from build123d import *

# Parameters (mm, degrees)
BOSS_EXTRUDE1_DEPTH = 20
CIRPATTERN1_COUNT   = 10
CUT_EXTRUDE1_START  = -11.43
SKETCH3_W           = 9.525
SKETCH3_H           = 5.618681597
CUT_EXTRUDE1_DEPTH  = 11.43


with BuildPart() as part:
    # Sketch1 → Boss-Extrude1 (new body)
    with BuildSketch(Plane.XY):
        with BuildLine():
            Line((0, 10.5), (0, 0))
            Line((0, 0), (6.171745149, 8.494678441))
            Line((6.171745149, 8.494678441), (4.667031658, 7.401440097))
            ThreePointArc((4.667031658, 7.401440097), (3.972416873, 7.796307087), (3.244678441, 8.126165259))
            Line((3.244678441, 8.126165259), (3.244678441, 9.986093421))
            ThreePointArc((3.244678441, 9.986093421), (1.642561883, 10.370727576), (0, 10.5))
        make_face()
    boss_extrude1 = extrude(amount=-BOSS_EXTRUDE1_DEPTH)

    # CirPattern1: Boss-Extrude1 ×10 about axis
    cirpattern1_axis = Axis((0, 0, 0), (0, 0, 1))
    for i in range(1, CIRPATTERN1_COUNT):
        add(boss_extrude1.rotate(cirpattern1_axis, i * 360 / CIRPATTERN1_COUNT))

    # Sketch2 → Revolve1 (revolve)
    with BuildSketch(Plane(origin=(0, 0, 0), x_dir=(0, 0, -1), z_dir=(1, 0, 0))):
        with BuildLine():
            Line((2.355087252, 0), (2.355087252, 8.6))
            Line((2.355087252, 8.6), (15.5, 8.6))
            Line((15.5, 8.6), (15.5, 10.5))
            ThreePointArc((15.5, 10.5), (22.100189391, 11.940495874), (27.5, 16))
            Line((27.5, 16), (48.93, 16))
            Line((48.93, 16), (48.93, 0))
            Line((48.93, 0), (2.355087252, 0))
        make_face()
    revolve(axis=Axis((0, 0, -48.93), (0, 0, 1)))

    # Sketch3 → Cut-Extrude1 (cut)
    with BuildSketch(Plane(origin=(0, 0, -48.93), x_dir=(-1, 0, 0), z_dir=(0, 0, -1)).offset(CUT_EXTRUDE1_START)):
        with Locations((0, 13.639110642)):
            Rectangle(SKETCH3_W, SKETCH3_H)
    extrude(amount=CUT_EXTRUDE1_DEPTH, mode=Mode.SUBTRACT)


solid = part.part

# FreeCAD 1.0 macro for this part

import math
import FreeCAD as App
import Part
import Sketcher
Q = App.Units.Quantity


def add_polygon(sketch, points):
    """Adds a closed chain of lines whose ends are joined by coincident constraints."""
    first, n = sketch.GeometryCount, len(points)
    for a, b in zip(points, points[1:] + points[:1]):
        sketch.addGeometry(Part.LineSegment(App.Vector(*a, 0), App.Vector(*b, 0)), False)
    for i in range(n):
        sketch.addConstraint(Sketcher.Constraint("Coincident", first + i, 2, first + (i + 1) % n, 1))

doc = App.newDocument("Part")
body = doc.addObject("PartDesign::Body", "Body")

# Sketch on XY plane
sketch1 = body.newObject("Sketcher::SketchObject", "Sketch")
sketch1.AttachmentSupport = (doc.getObject("XY_Plane"), [""])
sketch1.MapMode = "FlatFace"
sketch1.addGeometry(Part.LineSegment(App.Vector(0, 10.5, 0), App.Vector(0, 0, 0)), False)
sketch1.addGeometry(Part.LineSegment(App.Vector(0, 0, 0), App.Vector(6.2, 8.5, 0)), False)
sketch1.addGeometry(Part.LineSegment(App.Vector(6.2, 8.5, 0), App.Vector(4.7, 7.4, 0)), False)
sketch1.addGeometry(Part.ArcOfCircle(Part.Circle(App.Vector(0, 0, 0), App.Vector(0, 0, 1), 8.7), math.radians(57.77), math.radians(68.23)), False)
sketch1.addGeometry(Part.LineSegment(App.Vector(3.2, 8.1, 0), App.Vector(3.2, 10, 0)), False)
sketch1.addGeometry(Part.ArcOfCircle(Part.Circle(App.Vector(0, 0, 0), App.Vector(0, 0, 1), 10.5), math.radians(72), math.radians(90)), False)
sketch1.addConstraint(Sketcher.Constraint("Coincident", 0, 2, 1, 1))
sketch1.addConstraint(Sketcher.Constraint("Coincident", 1, 2, 2, 1))
sketch1.addConstraint(Sketcher.Constraint("Coincident", 2, 2, 3, 1))
sketch1.addConstraint(Sketcher.Constraint("Coincident", 3, 2, 4, 1))
sketch1.addConstraint(Sketcher.Constraint("Coincident", 4, 2, 5, 1))
sketch1.addConstraint(Sketcher.Constraint("Coincident", 5, 2, 0, 1))
sketch1.addConstraint(Sketcher.Constraint("Vertical", 0))
sketch1.addConstraint(Sketcher.Constraint("Vertical", 4))
sketch1.addConstraint(Sketcher.Constraint("Coincident", 3, 3, -1, 1))
sketch1.addConstraint(Sketcher.Constraint("Coincident", 5, 3, -1, 1))
sketch1.addConstraint(Sketcher.Constraint("Coincident", 0, 2, -1, 1))
sketch1.addConstraint(Sketcher.Constraint("Radius", 5, Q("10.5 mm")))
sketch1.addConstraint(Sketcher.Constraint("Angle", 1, Q("54 deg")))
sketch1.addConstraint(Sketcher.Constraint("Angle", 2, Q("-144 deg")))
sketch1.addConstraint(Sketcher.Constraint("Radius", 3, Q("8.75 mm")))
sketch1.addConstraint(Sketcher.Constraint("Distance", 1, Q("10.5 mm")))
sketch1.addConstraint(Sketcher.Constraint("DistanceY", 4, 1, 4, 2, Q("1.859928 mm")))
pad1 = body.newObject("PartDesign::Pad", "Pad")
pad1.Profile = sketch1
pad1.Length = 20
pad1.Reversed = True
doc.recompute()

polarpattern = body.newObject("PartDesign::PolarPattern", "PolarPattern")
polarpattern.Originals = [pad1]
polarpattern.Axis = (doc.getObject("Z_Axis"), [""])
polarpattern.Angle = 360
polarpattern.Occurrences = 10
body.Tip = polarpattern

# Sketch on YZ plane
sketch2 = body.newObject("Sketcher::SketchObject", "Sketch001")
sketch2.AttachmentSupport = (doc.getObject("YZ_Plane"), [""])
sketch2.MapMode = "FlatFace"
sketch2.addGeometry(Part.LineSegment(App.Vector(8.6, -2.4, 0), App.Vector(0, -2.4, 0)), False)
sketch2.addGeometry(Part.LineSegment(App.Vector(0, -2.4, 0), App.Vector(0, -48.9, 0)), False)
sketch2.addGeometry(Part.LineSegment(App.Vector(0, -48.9, 0), App.Vector(16, -48.9, 0)), False)
sketch2.addGeometry(Part.LineSegment(App.Vector(16, -48.9, 0), App.Vector(16, -27.5, 0)), False)
sketch2.addGeometry(Part.ArcOfCircle(Part.Circle(App.Vector(26.3, -15.5, 0), App.Vector(0, 0, 1), 15.8), math.radians(-180), math.radians(-131)), False)
sketch2.addGeometry(Part.LineSegment(App.Vector(10.5, -15.5, 0), App.Vector(8.6, -15.5, 0)), False)
sketch2.addGeometry(Part.LineSegment(App.Vector(8.6, -15.5, 0), App.Vector(8.6, -2.4, 0)), False)
sketch2.addConstraint(Sketcher.Constraint("Coincident", 0, 2, 1, 1))
sketch2.addConstraint(Sketcher.Constraint("Coincident", 1, 2, 2, 1))
sketch2.addConstraint(Sketcher.Constraint("Coincident", 2, 2, 3, 1))
sketch2.addConstraint(Sketcher.Constraint("Coincident", 3, 2, 4, 2))
sketch2.addConstraint(Sketcher.Constraint("Coincident", 4, 1, 5, 1))
sketch2.addConstraint(Sketcher.Constraint("Coincident", 5, 2, 6, 1))
sketch2.addConstraint(Sketcher.Constraint("Coincident", 6, 2, 0, 1))
sketch2.addConstraint(Sketcher.Constraint("Horizontal", 0))
sketch2.addConstraint(Sketcher.Constraint("Vertical", 1))
sketch2.addConstraint(Sketcher.Constraint("Horizontal", 2))
sketch2.addConstraint(Sketcher.Constraint("Vertical", 3))
sketch2.addConstraint(Sketcher.Constraint("Horizontal", 5))
sketch2.addConstraint(Sketcher.Constraint("Vertical", 6))
sketch2.addConstraint(Sketcher.Constraint("PointOnObject", 0, 2, -2))
sketch2.addConstraint(Sketcher.Constraint("DistanceX", 2, 1, 2, 2, Q("16 mm")))
sketch2.addConstraint(Sketcher.Constraint("DistanceX", 0, 2, 0, 1, Q("8.6 mm")))
sketch2.addConstraint(Sketcher.Constraint("DistanceX", 5, 2, 5, 1, Q("1.9 mm")))
sketch2.addConstraint(Sketcher.Constraint("DistanceY", 3, 2, 4, 3, Q("12 mm")))
sketch2.addConstraint(Sketcher.Constraint("DistanceY", 3, 2, 4, 1, Q("12 mm")))
sketch2.addConstraint(Sketcher.Constraint("DistanceY", 3, 1, 3, 2, Q("21.43 mm")))
sketch2.addConstraint(Sketcher.Constraint("DistanceY", 4, 3, -1, 1, Q("15.5 mm")))
sketch2.addConstraint(Sketcher.Constraint("DistanceY", 1, 2, 1, 1, Q("46.574913 mm")))
revolution = body.newObject("PartDesign::Revolution", "Revolution")
revolution.Profile = sketch2
revolution.ReferenceAxis = (sketch2, ["V_Axis"])
revolution.Angle = 360

# Sketch on XY plane
sketch3 = body.newObject("Sketcher::SketchObject", "Sketch002")
sketch3.AttachmentSupport = (doc.getObject("XY_Plane"), [""])
sketch3.MapMode = "FlatFace"
sketch3.AttachmentOffset = App.Placement(App.Vector(0, 0, -37.5), App.Rotation())
add_polygon(sketch3, [(5, 16), (5, 11), (-5, 11), (-5, 16)])  # lines 0-3
sketch3.addConstraint(Sketcher.Constraint("Vertical", 0))
sketch3.addConstraint(Sketcher.Constraint("Horizontal", 1))
sketch3.addConstraint(Sketcher.Constraint("Vertical", 2))
sketch3.addConstraint(Sketcher.Constraint("Horizontal", 3))
sketch3.addConstraint(Sketcher.Constraint("DistanceX", 1, 2, 1, 1, Q("9.525 mm")))
sketch3.addConstraint(Sketcher.Constraint("DistanceY", 0, 2, 0, 1, Q("5.618682 mm")))
sketch3.addConstraint(Sketcher.Constraint("DistanceX", -1, 1, 0, 2, Q("4.7625 mm")))
sketch3.addConstraint(Sketcher.Constraint("DistanceY", -1, 1, 0, 2, Q("10.82977 mm")))
pocket1 = body.newObject("PartDesign::Pocket", "Pocket")
pocket1.Profile = sketch3
pocket1.Length = 11.43

doc.recompute()
